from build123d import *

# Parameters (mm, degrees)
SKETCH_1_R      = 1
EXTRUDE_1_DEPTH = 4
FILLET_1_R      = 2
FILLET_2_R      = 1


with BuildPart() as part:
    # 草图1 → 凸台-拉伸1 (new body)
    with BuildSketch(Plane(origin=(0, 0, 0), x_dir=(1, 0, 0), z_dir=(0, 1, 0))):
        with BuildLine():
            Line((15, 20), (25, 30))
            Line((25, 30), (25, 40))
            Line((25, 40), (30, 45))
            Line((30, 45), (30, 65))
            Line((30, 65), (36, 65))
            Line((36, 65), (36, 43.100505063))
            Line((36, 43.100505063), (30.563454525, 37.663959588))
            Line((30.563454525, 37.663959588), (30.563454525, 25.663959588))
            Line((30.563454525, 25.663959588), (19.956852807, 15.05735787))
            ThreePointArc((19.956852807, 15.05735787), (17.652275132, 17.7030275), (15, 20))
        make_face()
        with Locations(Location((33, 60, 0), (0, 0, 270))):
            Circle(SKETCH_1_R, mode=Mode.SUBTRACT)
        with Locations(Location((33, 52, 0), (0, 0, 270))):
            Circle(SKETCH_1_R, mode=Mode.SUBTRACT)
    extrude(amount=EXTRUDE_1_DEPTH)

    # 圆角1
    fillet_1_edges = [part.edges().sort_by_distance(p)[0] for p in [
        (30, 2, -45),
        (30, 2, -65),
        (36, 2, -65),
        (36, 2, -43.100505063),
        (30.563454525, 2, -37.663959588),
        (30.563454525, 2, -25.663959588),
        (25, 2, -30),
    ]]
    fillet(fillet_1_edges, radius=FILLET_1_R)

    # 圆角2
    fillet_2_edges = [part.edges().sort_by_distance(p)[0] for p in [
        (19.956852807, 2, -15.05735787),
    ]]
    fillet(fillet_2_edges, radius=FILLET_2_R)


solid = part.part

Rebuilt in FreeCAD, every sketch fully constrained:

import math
import FreeCAD as App
import Part
import Sketcher
from FreeCAD import Vector
Q = App.Units.Quantity


def edges_at(feature, points):
    """Names of the edges that pass closest to the given points."""
    edges = feature.Shape.Edges
    near = lambda p: min(range(len(edges)), key=lambda i: edges[i].distToShape(Part.Vertex(*p))[0])
    return sorted({f"Edge{near(p) + 1}" for p in points})

doc = App.newDocument("Part")
body = doc.addObject("PartDesign::Body", "Body")

# Sketch on XZ plane
sketch1 = body.newObject("Sketcher::SketchObject", "Sketch")
sketch1.AttachmentSupport = (doc.getObject("XZ_Plane"), [""])
sketch1.MapMode = "FlatFace"
sketch1.addGeometry(Part.LineSegment(Vector(25, -30, 0), Vector(15, -20, 0)), False)
sketch1.addGeometry(Part.ArcOfCircle(Part.Circle(Vector(0, 0, 0), Vector(0, 0, 1), 25), math.radians(-53.13), math.radians(-37.03)), False)
sketch1.addGeometry(Part.LineSegment(Vector(20, -15.1, 0), Vector(30.6, -25.7, 0)), False)
sketch1.addGeometry(Part.LineSegment(Vector(30.6, -25.7, 0), Vector(30.6, -37.7, 0)), False)
sketch1.addGeometry(Part.LineSegment(Vector(30.6, -37.7, 0), Vector(36, -43.1, 0)), False)
sketch1.addGeometry(Part.LineSegment(Vector(36, -43.1, 0), Vector(36, -65, 0)), False)
sketch1.addGeometry(Part.LineSegment(Vector(36, -65, 0), Vector(30, -65, 0)), False)
sketch1.addGeometry(Part.LineSegment(Vector(30, -65, 0), Vector(30, -45, 0)), False)
sketch1.addGeometry(Part.LineSegment(Vector(30, -45, 0), Vector(25, -40, 0)), False)
sketch1.addGeometry(Part.LineSegment(Vector(25, -40, 0), Vector(25, -30, 0)), False)
sketch1.addGeometry(Part.Circle(Vector(33, -52, 0), Vector(0, 0, 1), 1), False)
sketch1.addGeometry(Part.Circle(Vector(33, -60, 0), Vector(0, 0, 1), 1), False)
sketch1.addConstraint(Sketcher.Constraint("Coincident", 0, 2, 1, 1))
sketch1.addConstraint(Sketcher.Constraint("Coincident", 1, 2, 2, 1))
sketch1.addConstraint(Sketcher.Constraint("Coincident", 2, 2, 3, 1))
sketch1.addConstraint(Sketcher.Constraint("Coincident", 3, 2, 4, 1))
sketch1.addConstraint(Sketcher.Constraint("Coincident", 4, 2, 5, 1))
sketch1.addConstraint(Sketcher.Constraint("Coincident", 5, 2, 6, 1))
sketch1.addConstraint(Sketcher.Constraint("Coincident", 6, 2, 7, 1))
sketch1.addConstraint(Sketcher.Constraint("Coincident", 7, 2, 8, 1))
sketch1.addConstraint(Sketcher.Constraint("Coincident", 8, 2, 9, 1))
sketch1.addConstraint(Sketcher.Constraint("Coincident", 9, 2, 0, 1))
sketch1.addConstraint(Sketcher.Constraint("Vertical", 3))
sketch1.addConstraint(Sketcher.Constraint("Vertical", 5))
sketch1.addConstraint(Sketcher.Constraint("Horizontal", 6))
sketch1.addConstraint(Sketcher.Constraint("Vertical", 7))
sketch1.addConstraint(Sketcher.Constraint("Vertical", 9))
sketch1.addConstraint(Sketcher.Constraint("Coincident", 1, 3, -1, 1))
sketch1.addConstraint(Sketcher.Constraint("Equal", 10, 11))
sketch1.addConstraint(Sketcher.Constraint("Parallel", 0, 2))
sketch1.addConstraint(Sketcher.Constraint("Parallel", 2, 4))
sketch1.addConstraint(Sketcher.Constraint("Parallel", 4, 8))
sketch1.addConstraint(Sketcher.Constraint("Vertical", 10, 3, 11, 3))
sketch1.addConstraint(Sketcher.Constraint("Diameter", 10, 2.0))
sketch1.addConstraint(Sketcher.Constraint("Radius", 1, 25.0))
sketch1.addConstraint(Sketcher.Constraint("DistanceX", 6, 2, 6, 1, 6.0))
sketch1.addConstraint(Sketcher.Constraint("DistanceY", 3, 2, 3, 1, 12.0))
sketch1.addConstraint(Sketcher.Constraint("DistanceY", 7, 1, 7, 2, 20.0))
sketch1.addConstraint(Sketcher.Constraint("DistanceY", 9, 1, 9, 2, 10.0))
sketch1.addConstraint(Sketcher.Constraint("Angle", 0, Q("135 deg")))
sketch1.addConstraint(Sketcher.Constraint("Distance", 2, 15.0))
sketch1.addConstraint(Sketcher.Constraint("DistanceX", -1, 1, 10, 3, 33.0))
sketch1.addConstraint(Sketcher.Constraint("DistanceY", 10, 3, -1, 1, 52.0))
sketch1.addConstraint(Sketcher.Constraint("DistanceY", 11, 3, -1, 1, 60.0))
sketch1.addConstraint(Sketcher.Constraint("DistanceX", -1, 1, 0, 2, 15.0))
sketch1.addConstraint(Sketcher.Constraint("DistanceX", -1, 1, 4, 2, 36.0))
sketch1.addConstraint(Sketcher.Constraint("DistanceX", -1, 1, 8, 2, 25.0))
sketch1.addConstraint(Sketcher.Constraint("DistanceY", 5, 2, 5, 1, 21.899495))
pad1 = body.newObject("PartDesign::Pad", "Pad")
pad1.Profile = sketch1
pad1.Length = 4
pad1.Reversed = True
doc.recompute()

fillet = body.newObject("PartDesign::Fillet", "Fillet")
fillet.Base = (pad1, edges_at(pad1, [
    (30, 2, -45),
    (30, 2, -65),
    (36, 2, -65),
    (36, 2, -43.101),
    (30.563, 2, -37.664),
    (30.563, 2, -25.664),
    (25, 2, -30),
]))
fillet.Radius = 2
doc.recompute()

fillet2 = body.newObject("PartDesign::Fillet", "Fillet001")
fillet2.Base = (fillet, edges_at(fillet, [(19.957, 2, -15.057)]))
fillet2.Radius = 1

doc.recompute()
